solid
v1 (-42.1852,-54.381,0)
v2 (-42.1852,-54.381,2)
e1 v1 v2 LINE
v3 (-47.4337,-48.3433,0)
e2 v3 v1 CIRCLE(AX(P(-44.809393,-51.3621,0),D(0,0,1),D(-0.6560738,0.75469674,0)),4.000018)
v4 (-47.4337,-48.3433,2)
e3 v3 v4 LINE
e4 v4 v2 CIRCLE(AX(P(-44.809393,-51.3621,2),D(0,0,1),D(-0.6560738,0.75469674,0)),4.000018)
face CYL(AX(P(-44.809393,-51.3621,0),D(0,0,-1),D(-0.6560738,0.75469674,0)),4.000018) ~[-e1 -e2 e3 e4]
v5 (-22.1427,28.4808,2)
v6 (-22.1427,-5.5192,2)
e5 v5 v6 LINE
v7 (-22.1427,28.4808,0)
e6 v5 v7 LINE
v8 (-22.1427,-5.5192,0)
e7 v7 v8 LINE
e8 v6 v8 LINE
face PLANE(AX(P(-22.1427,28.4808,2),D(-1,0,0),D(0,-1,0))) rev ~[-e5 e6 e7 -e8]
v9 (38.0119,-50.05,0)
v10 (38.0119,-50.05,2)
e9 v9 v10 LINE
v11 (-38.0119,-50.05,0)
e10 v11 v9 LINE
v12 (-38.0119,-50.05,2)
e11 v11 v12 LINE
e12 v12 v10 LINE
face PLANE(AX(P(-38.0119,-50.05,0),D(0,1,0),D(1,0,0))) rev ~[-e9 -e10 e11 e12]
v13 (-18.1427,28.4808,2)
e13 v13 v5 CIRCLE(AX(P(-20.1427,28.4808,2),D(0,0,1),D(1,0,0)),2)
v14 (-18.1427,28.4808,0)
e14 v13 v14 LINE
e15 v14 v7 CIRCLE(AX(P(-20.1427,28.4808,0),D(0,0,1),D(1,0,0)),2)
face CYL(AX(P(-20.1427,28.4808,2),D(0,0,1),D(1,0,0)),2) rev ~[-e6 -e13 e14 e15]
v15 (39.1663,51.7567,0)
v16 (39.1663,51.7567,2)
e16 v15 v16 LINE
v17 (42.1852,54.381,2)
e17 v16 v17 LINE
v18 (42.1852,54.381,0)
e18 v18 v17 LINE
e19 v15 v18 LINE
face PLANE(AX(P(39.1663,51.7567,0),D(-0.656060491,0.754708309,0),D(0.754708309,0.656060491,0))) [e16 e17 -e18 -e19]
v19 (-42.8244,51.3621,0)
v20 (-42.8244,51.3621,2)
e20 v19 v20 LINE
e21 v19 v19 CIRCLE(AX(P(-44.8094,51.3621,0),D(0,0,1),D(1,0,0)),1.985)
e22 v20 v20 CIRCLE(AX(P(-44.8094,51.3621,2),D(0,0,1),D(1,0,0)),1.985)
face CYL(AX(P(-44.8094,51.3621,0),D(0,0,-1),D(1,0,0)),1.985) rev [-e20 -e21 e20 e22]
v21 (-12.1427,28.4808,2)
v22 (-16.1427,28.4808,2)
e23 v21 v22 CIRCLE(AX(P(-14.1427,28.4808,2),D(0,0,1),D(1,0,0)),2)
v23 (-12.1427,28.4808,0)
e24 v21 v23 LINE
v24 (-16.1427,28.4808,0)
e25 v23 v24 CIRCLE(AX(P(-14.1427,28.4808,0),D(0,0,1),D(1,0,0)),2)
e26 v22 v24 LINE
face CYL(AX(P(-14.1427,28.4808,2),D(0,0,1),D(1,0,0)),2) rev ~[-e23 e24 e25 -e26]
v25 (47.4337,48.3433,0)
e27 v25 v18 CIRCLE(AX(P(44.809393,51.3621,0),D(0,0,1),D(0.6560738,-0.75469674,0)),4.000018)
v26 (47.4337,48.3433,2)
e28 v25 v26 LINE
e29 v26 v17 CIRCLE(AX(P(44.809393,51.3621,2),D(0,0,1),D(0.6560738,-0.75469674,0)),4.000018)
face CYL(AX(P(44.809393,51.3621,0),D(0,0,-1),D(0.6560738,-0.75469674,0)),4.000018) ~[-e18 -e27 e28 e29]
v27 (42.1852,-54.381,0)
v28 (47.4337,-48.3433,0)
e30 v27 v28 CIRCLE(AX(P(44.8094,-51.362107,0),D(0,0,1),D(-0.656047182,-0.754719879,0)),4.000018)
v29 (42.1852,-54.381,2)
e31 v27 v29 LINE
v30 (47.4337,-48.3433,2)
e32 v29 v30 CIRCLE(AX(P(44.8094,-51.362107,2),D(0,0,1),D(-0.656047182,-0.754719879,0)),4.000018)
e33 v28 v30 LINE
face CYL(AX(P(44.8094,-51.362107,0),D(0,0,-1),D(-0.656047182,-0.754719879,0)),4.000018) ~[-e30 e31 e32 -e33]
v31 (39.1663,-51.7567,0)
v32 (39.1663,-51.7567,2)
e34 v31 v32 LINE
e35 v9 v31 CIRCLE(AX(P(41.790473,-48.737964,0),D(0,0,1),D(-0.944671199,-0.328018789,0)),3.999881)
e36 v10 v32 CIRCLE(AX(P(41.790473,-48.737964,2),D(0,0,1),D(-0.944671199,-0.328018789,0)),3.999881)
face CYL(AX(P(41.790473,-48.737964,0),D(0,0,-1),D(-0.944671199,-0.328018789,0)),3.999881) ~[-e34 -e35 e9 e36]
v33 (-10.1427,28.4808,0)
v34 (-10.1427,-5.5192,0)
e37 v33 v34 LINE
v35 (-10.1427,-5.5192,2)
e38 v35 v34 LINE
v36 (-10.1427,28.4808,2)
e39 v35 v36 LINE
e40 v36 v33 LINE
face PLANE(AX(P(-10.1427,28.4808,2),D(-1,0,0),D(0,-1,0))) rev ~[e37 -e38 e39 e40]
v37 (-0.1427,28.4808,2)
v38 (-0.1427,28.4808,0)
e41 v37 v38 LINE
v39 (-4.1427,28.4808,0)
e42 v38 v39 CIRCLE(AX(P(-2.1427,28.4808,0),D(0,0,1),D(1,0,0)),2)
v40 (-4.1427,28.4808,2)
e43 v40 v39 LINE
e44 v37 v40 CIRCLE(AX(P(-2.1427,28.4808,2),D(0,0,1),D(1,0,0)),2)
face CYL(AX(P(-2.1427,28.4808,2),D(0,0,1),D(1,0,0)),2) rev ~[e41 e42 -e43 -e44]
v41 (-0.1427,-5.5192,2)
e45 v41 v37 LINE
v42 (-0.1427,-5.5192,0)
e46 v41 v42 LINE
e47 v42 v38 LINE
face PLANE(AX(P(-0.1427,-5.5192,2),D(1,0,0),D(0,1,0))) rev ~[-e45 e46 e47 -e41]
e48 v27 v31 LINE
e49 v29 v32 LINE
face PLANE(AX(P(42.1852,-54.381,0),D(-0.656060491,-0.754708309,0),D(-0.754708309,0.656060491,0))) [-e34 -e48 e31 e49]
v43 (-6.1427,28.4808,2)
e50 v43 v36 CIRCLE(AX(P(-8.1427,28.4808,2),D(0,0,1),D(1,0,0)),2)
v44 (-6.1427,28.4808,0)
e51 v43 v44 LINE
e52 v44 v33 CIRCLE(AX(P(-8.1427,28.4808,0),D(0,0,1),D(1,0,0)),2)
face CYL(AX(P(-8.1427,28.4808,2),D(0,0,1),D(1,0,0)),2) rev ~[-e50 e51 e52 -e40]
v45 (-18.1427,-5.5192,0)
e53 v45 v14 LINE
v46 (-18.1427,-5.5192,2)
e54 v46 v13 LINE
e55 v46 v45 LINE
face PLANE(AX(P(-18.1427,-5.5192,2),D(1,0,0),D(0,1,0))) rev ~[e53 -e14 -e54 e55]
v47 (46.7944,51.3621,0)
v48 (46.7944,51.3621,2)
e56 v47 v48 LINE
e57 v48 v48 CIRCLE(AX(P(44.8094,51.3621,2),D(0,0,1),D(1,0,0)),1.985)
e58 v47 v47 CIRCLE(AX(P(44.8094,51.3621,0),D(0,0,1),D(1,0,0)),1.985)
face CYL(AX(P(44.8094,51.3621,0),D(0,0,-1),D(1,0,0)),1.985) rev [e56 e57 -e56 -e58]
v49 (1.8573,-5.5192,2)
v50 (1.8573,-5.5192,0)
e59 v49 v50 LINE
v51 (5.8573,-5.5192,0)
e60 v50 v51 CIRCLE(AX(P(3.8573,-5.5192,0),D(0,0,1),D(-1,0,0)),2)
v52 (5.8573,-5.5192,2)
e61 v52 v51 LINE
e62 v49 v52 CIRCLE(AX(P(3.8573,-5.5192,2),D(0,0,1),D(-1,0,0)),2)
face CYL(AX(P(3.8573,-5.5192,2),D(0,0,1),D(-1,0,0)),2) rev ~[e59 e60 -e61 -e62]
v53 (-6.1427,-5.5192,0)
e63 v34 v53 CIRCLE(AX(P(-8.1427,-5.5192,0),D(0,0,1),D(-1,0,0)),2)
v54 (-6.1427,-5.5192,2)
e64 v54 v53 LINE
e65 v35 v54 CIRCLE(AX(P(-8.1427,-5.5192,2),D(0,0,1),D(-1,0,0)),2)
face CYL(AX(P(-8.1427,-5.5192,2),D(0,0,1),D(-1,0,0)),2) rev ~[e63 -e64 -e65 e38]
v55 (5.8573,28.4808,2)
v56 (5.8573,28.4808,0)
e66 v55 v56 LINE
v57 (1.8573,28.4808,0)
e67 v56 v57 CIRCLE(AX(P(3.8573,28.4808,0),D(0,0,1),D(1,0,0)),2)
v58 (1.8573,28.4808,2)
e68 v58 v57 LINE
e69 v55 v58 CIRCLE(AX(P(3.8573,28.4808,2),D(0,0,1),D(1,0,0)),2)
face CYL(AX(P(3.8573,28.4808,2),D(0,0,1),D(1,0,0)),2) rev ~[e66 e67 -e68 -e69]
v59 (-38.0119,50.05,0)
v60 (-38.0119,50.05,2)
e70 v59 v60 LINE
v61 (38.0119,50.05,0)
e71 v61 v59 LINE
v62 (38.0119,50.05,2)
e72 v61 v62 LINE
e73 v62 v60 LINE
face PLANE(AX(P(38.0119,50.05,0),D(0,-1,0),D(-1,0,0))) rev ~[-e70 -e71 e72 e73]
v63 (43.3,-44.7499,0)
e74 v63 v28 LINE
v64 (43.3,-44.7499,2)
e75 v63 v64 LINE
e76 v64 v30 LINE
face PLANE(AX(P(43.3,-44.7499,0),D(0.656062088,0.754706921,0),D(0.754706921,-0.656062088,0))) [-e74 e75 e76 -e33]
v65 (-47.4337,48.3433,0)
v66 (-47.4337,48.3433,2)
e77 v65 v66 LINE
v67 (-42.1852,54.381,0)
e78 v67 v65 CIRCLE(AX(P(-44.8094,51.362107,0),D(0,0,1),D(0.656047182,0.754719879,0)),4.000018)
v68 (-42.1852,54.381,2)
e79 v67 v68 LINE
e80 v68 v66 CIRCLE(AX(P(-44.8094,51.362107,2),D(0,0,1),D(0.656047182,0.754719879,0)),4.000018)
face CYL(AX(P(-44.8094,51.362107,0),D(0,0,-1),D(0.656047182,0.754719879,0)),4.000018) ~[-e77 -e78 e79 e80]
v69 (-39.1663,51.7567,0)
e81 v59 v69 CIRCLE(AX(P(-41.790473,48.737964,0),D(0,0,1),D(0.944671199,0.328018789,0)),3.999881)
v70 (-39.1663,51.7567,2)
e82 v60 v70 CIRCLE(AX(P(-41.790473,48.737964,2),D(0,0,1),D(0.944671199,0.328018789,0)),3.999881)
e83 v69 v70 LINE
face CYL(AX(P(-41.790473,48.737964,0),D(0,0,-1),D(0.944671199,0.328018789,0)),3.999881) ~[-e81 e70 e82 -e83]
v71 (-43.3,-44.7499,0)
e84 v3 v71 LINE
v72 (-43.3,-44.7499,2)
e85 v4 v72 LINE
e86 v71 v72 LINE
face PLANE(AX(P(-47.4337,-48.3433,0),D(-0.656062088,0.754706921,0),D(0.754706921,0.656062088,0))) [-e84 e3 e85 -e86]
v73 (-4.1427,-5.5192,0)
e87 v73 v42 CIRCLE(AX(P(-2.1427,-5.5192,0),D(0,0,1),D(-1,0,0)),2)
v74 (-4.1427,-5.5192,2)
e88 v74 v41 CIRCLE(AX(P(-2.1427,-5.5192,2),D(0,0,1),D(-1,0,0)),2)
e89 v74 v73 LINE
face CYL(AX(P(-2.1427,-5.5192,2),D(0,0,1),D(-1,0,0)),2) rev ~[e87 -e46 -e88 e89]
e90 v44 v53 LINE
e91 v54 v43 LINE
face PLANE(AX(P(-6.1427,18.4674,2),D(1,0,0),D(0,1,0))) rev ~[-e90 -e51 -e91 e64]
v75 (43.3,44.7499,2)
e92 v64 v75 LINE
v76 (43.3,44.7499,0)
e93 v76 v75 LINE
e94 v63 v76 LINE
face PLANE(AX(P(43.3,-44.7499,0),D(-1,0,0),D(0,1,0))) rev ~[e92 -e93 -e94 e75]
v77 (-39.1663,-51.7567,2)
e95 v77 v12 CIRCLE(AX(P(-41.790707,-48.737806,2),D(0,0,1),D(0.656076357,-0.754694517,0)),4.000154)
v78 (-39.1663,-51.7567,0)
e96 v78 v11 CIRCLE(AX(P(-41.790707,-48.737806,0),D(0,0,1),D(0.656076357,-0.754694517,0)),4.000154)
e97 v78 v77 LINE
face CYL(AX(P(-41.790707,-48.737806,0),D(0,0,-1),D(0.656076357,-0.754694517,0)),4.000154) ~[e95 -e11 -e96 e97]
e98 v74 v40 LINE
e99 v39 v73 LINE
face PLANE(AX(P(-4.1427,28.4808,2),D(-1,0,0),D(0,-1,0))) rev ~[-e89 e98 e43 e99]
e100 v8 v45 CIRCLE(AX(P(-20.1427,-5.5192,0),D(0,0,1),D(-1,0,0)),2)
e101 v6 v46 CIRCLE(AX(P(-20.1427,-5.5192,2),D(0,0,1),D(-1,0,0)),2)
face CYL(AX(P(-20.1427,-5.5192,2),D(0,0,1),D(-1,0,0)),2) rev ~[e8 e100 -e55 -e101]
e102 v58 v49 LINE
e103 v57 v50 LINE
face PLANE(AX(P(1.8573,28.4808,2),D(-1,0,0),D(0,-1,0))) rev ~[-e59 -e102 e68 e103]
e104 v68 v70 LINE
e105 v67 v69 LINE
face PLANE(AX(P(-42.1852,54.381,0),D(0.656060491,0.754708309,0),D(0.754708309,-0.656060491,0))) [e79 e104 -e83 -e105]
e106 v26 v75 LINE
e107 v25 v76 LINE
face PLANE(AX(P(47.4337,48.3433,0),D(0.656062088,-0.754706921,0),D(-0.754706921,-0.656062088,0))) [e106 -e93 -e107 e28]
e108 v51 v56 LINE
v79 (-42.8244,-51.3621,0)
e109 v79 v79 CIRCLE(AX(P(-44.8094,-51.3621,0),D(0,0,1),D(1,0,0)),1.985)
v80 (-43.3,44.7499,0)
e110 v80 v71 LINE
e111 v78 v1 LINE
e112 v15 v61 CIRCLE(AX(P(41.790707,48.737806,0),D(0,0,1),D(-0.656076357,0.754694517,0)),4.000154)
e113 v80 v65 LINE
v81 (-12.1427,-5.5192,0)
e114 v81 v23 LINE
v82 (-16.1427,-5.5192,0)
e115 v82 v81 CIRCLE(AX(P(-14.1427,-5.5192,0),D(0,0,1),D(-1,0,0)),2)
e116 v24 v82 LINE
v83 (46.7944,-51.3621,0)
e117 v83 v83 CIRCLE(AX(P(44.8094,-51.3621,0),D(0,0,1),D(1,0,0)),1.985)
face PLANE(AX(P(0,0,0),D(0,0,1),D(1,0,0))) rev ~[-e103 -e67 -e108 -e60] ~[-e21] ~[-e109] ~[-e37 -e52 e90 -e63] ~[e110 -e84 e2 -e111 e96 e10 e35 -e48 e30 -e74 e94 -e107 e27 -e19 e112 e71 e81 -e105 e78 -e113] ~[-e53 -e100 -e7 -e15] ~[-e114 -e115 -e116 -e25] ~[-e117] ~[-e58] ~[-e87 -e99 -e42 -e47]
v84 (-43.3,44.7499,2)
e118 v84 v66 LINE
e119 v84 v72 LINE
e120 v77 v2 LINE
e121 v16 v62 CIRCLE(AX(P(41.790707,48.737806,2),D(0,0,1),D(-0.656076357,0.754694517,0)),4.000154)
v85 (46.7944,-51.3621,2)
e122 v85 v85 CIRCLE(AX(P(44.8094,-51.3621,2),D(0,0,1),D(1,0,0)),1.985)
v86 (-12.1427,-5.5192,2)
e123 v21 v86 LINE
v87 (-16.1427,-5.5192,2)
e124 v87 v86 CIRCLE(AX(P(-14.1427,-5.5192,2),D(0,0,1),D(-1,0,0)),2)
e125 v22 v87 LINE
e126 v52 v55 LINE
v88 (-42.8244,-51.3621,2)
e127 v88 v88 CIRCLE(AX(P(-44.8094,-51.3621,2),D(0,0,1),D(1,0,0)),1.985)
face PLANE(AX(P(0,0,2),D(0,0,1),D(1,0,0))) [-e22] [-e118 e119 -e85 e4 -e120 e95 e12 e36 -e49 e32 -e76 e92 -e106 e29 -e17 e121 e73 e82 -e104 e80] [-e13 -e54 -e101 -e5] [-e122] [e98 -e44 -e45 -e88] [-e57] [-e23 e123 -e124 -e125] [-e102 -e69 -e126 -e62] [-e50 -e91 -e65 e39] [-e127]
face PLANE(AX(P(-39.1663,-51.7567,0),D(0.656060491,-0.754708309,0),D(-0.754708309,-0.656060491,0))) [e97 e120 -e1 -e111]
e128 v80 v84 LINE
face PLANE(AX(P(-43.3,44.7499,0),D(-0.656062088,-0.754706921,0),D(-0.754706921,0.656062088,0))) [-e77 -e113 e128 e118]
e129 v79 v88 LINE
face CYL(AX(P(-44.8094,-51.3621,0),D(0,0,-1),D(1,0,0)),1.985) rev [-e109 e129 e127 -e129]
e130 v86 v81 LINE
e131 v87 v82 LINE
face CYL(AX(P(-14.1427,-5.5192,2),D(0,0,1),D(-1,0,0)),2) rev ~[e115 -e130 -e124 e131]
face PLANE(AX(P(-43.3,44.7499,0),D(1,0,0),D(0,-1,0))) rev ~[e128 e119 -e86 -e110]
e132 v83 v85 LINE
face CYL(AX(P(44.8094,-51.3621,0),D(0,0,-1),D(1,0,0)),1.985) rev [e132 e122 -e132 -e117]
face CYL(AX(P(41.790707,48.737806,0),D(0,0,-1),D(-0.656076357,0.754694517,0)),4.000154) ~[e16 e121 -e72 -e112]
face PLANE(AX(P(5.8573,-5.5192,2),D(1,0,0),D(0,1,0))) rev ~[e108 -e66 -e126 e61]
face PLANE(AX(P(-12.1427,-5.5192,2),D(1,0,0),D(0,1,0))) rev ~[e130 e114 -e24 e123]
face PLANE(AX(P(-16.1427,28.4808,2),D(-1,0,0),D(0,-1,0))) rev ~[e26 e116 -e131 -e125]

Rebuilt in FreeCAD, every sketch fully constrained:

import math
import FreeCAD as App
import Part
import Sketcher
from FreeCAD import Vector
Q = App.Units.Quantity

doc = App.newDocument("Part")
body = doc.addObject("PartDesign::Body", "Body")

# Sketch on XY plane
sketch1 = body.newObject("Sketcher::SketchObject", "Sketch")
sketch1.AttachmentSupport = (doc.getObject("XY_Plane"), [""])
sketch1.MapMode = "FlatFace"
sketch1.addGeometry([
    Part.ArcOfCircle(Part.Circle(Vector(41.8, 48.7, 0), Vector(0, 0, 1), 4), math.radians(131), math.radians(161)),  # 0
    Part.LineSegment(Vector(38, 50, 0), Vector(-38, 50, 0)),  # 1
    Part.ArcOfCircle(Part.Circle(Vector(-41.8, 48.7, 0), Vector(0, 0, 1), 4), math.radians(19), math.radians(49)),  # 2
    Part.LineSegment(Vector(-39.2, 51.8, 0), Vector(-42.2, 54.4, 0)),  # 3
    Part.ArcOfCircle(Part.Circle(Vector(-44.8, 51.4, 0), Vector(0, 0, 1), 4), math.radians(49), math.radians(229)),  # 4
    Part.LineSegment(Vector(-47.4, 48.3, 0), Vector(-43.3, 44.7, 0)),  # 5
    Part.LineSegment(Vector(-43.3, 44.7, 0), Vector(-43.3, -44.7, 0)),  # 6
    Part.LineSegment(Vector(-43.3, -44.7, 0), Vector(-47.4, -48.3, 0)),  # 7
    Part.ArcOfCircle(Part.Circle(Vector(-44.8, -51.4, 0), Vector(0, 0, 1), 4), math.radians(131), math.radians(311)),  # 8
    Part.LineSegment(Vector(-42.2, -54.4, 0), Vector(-39.2, -51.8, 0)),  # 9
    Part.ArcOfCircle(Part.Circle(Vector(-41.8, -48.7, 0), Vector(0, 0, 1), 4), math.radians(-49), math.radians(-19)),  # 10
    Part.LineSegment(Vector(-38, -50, 0), Vector(38, -50, 0)),  # 11
    Part.ArcOfCircle(Part.Circle(Vector(41.8, -48.7, 0), Vector(0, 0, 1), 4), math.radians(-161), math.radians(-131)),  # 12
    Part.LineSegment(Vector(39.2, -51.8, 0), Vector(42.2, -54.4, 0)),  # 13
    Part.ArcOfCircle(Part.Circle(Vector(44.8, -51.4, 0), Vector(0, 0, 1), 4), math.radians(-131), math.radians(49)),  # 14
    Part.LineSegment(Vector(47.4, -48.3, 0), Vector(43.3, -44.7, 0)),  # 15
    Part.LineSegment(Vector(43.3, -44.7, 0), Vector(43.3, 44.7, 0)),  # 16
    Part.LineSegment(Vector(43.3, 44.7, 0), Vector(47.4, 48.3, 0)),  # 17
    Part.ArcOfCircle(Part.Circle(Vector(44.8, 51.4, 0), Vector(0, 0, 1), 4), math.radians(-49), math.radians(131)),  # 18
    Part.LineSegment(Vector(42.2, 54.4, 0), Vector(39.2, 51.8, 0)),  # 19
    Part.Circle(Vector(-44.8, -51.4, 0), Vector(0, 0, 1), 2),  # 20
    Part.Circle(Vector(44.8, -51.4, 0), Vector(0, 0, 1), 2),  # 21
    Part.Circle(Vector(-44.8, 51.4, 0), Vector(0, 0, 1), 2),  # 22
    Part.Circle(Vector(44.8, 51.4, 0), Vector(0, 0, 1), 2),  # 23
], False)
sketch1.addConstraint([
    Sketcher.Constraint("Coincident", 0, 2, 1, 1),
    Sketcher.Constraint("Coincident", 1, 2, 2, 1),
    Sketcher.Constraint("Tangent", 2, 2, 3, 1),
    Sketcher.Constraint("Tangent", 3, 2, 4, 1),
    Sketcher.Constraint("Tangent", 4, 2, 5, 1),
    Sketcher.Constraint("Coincident", 5, 2, 6, 1),
    Sketcher.Constraint("Coincident", 6, 2, 7, 1),
    Sketcher.Constraint("Tangent", 7, 2, 8, 1),
    Sketcher.Constraint("Tangent", 8, 2, 9, 1),
    Sketcher.Constraint("Tangent", 9, 2, 10, 1),
    Sketcher.Constraint("Coincident", 10, 2, 11, 1),
    Sketcher.Constraint("Coincident", 11, 2, 12, 1),
    Sketcher.Constraint("Tangent", 12, 2, 13, 1),
    Sketcher.Constraint("Tangent", 13, 2, 14, 1),
    Sketcher.Constraint("Tangent", 14, 2, 15, 1),
    Sketcher.Constraint("Coincident", 15, 2, 16, 1),
    Sketcher.Constraint("Coincident", 16, 2, 17, 1),
    Sketcher.Constraint("Tangent", 17, 2, 18, 1),
    Sketcher.Constraint("Tangent", 18, 2, 19, 1),
    Sketcher.Constraint("Tangent", 19, 2, 0, 1),
    Sketcher.Constraint("Horizontal", 1),
    Sketcher.Constraint("Vertical", 6),
    Sketcher.Constraint("Horizontal", 11),
    Sketcher.Constraint("Vertical", 16),
    Sketcher.Constraint("Coincident", 20, 3, 8, 3),
    Sketcher.Constraint("Coincident", 21, 3, 14, 3),
    Sketcher.Constraint("Coincident", 22, 3, 4, 3),
    Sketcher.Constraint("Coincident", 23, 3, 18, 3),
    Sketcher.Constraint("Equal", 0, 2),
    Sketcher.Constraint("Equal", 2, 4),
    Sketcher.Constraint("Equal", 4, 8),
    Sketcher.Constraint("Equal", 8, 10),
    Sketcher.Constraint("Equal", 10, 12),
    Sketcher.Constraint("Equal", 12, 14),
    Sketcher.Constraint("Equal", 14, 18),
    Sketcher.Constraint("Equal", 20, 21),
    Sketcher.Constraint("Equal", 21, 22),
    Sketcher.Constraint("Equal", 22, 23),
    Sketcher.Constraint("Symmetric", 0, 3, 10, 3, -1, 1),
    Sketcher.Constraint("Symmetric", 2, 3, 12, 3, -1, 1),
    Sketcher.Constraint("Symmetric", 4, 3, 14, 3, -1, 1),
    Sketcher.Constraint("Symmetric", 8, 3, 18, 3, -1, 1),
    Sketcher.Constraint("Symmetric", 5, 2, 15, 2, -1, 1),
    Sketcher.Constraint("Symmetric", 0, 3, 2, 3, -2),
    Sketcher.Constraint("Symmetric", 8, 3, 14, 3, -2),
    Sketcher.Constraint("Parallel", 3, 5),
    Sketcher.Constraint("Parallel", 7, 9),
    Sketcher.Constraint("Parallel", 9, 17),
    Sketcher.Constraint("Vertical", 1, 2, 10, 2),
    Sketcher.Constraint("Radius", 0, 4.0),
    Sketcher.Constraint("Diameter", 20, 3.97),
    Sketcher.Constraint("Angle", 3, Q("139 deg")),
    Sketcher.Constraint("Distance", 3, 4.0),
    Sketcher.Constraint("DistanceX", 5, 2, -1, 1, 43.3),
    Sketcher.Constraint("DistanceX", 4, 3, 0, 3, 86.6),
    Sketcher.Constraint("DistanceY", 8, 3, 2, 3, 100.1),
    Sketcher.Constraint("DistanceY", 5, 2, 1, 2, 5.3),
])
pad1 = body.newObject("PartDesign::Pad", "Pad")
pad1.Profile = sketch1
pad1.Length = 2

# Sketch on XY plane
sketch2 = body.newObject("Sketcher::SketchObject", "Sketch001")
sketch2.AttachmentSupport = (doc.getObject("XY_Plane"), [""])
sketch2.MapMode = "FlatFace"
sketch2.AttachmentOffset = App.Placement(Vector(0, 0, 2), App.Rotation())
sketch2.addGeometry([
    Part.LineSegment(Vector(-12.1, -5.5, 0), Vector(-12.1, 28.5, 0)),  # 0
    Part.ArcOfCircle(Part.Circle(Vector(-14.1, 28.5, 0), Vector(0, 0, 1), 2), math.radians(0), math.radians(180)),  # 1
    Part.LineSegment(Vector(-16.1, 28.5, 0), Vector(-16.1, -5.5, 0)),  # 2
    Part.ArcOfCircle(Part.Circle(Vector(-14.1, -5.5, 0), Vector(0, 0, 1), 2), math.radians(180), math.radians(360)),  # 3
    Part.LineSegment(Vector(-10.1, 28.5, 0), Vector(-10.1, -5.5, 0)),  # 4
    Part.ArcOfCircle(Part.Circle(Vector(-8.1, -5.5, 0), Vector(0, 0, 1), 2), math.radians(180), math.radians(360)),  # 5
    Part.LineSegment(Vector(-6.1, -5.5, 0), Vector(-6.1, 28.5, 0)),  # 6
    Part.ArcOfCircle(Part.Circle(Vector(-8.1, 28.5, 0), Vector(0, 0, 1), 2), math.radians(0), math.radians(180)),  # 7
    Part.LineSegment(Vector(-4.1, 28.5, 0), Vector(-4.1, -5.5, 0)),  # 8
    Part.ArcOfCircle(Part.Circle(Vector(-2.1, -5.5, 0), Vector(0, 0, 1), 2), math.radians(180), math.radians(360)),  # 9
    Part.LineSegment(Vector(-0.1, -5.5, 0), Vector(-0.1, 28.5, 0)),  # 10
    Part.ArcOfCircle(Part.Circle(Vector(-2.1, 28.5, 0), Vector(0, 0, 1), 2), math.radians(0), math.radians(180)),  # 11
    Part.ArcOfCircle(Part.Circle(Vector(3.9, -5.5, 0), Vector(0, 0, 1), 2), math.radians(180), math.radians(360)),  # 12
    Part.LineSegment(Vector(5.9, -5.5, 0), Vector(5.9, 28.5, 0)),  # 13
    Part.ArcOfCircle(Part.Circle(Vector(3.9, 28.5, 0), Vector(0, 0, 1), 2), math.radians(0), math.radians(180)),  # 14
    Part.LineSegment(Vector(1.9, 28.5, 0), Vector(1.9, -5.5, 0)),  # 15
    Part.ArcOfCircle(Part.Circle(Vector(-20.1, 28.5, 0), Vector(0, 0, 1), 2), math.radians(0), math.radians(180)),  # 16
    Part.LineSegment(Vector(-22.1, 28.5, 0), Vector(-22.1, -5.5, 0)),  # 17
    Part.ArcOfCircle(Part.Circle(Vector(-20.1, -5.5, 0), Vector(0, 0, 1), 2), math.radians(180), math.radians(360)),  # 18
    Part.LineSegment(Vector(-18.1, -5.5, 0), Vector(-18.1, 28.5, 0)),  # 19
], False)
sketch2.addConstraint([
    Sketcher.Constraint("Tangent", 0, 2, 1, 1),
    Sketcher.Constraint("Tangent", 1, 2, 2, 1),
    Sketcher.Constraint("Tangent", 2, 2, 3, 1),
    Sketcher.Constraint("Tangent", 3, 2, 0, 1),
    Sketcher.Constraint("Tangent", 4, 2, 5, 1),
    Sketcher.Constraint("Tangent", 5, 2, 6, 1),
    Sketcher.Constraint("Tangent", 6, 2, 7, 1),
    Sketcher.Constraint("Tangent", 7, 2, 4, 1),
    Sketcher.Constraint("Tangent", 8, 2, 9, 1),
    Sketcher.Constraint("Tangent", 9, 2, 10, 1),
    Sketcher.Constraint("Tangent", 10, 2, 11, 1),
    Sketcher.Constraint("Tangent", 11, 2, 8, 1),
    Sketcher.Constraint("Tangent", 12, 2, 13, 1),
    Sketcher.Constraint("Tangent", 13, 2, 14, 1),
    Sketcher.Constraint("Tangent", 14, 2, 15, 1),
    Sketcher.Constraint("Tangent", 15, 2, 12, 1),
    Sketcher.Constraint("Tangent", 16, 2, 17, 1),
    Sketcher.Constraint("Tangent", 17, 2, 18, 1),
    Sketcher.Constraint("Tangent", 18, 2, 19, 1),
    Sketcher.Constraint("Tangent", 19, 2, 16, 1),
    Sketcher.Constraint("Vertical", 0),
    Sketcher.Constraint("Vertical", 2),
    Sketcher.Constraint("Vertical", 4),
    Sketcher.Constraint("Vertical", 6),
    Sketcher.Constraint("Vertical", 8),
    Sketcher.Constraint("Vertical", 10),
    Sketcher.Constraint("Vertical", 13),
    Sketcher.Constraint("Vertical", 15),
    Sketcher.Constraint("Vertical", 17),
    Sketcher.Constraint("Vertical", 19),
    Sketcher.Constraint("Equal", 3, 5),
    Sketcher.Constraint("Equal", 7, 9),
    Sketcher.Constraint("Equal", 11, 12),
    Sketcher.Constraint("Equal", 14, 16),
    Sketcher.Constraint("Horizontal", 3, 3, 5, 3),
    Sketcher.Constraint("Horizontal", 1, 3, 7, 3),
    Sketcher.Constraint("Horizontal", 5, 3, 9, 3),
    Sketcher.Constraint("Horizontal", 7, 3, 11, 3),
    Sketcher.Constraint("Horizontal", 9, 3, 12, 3),
    Sketcher.Constraint("Horizontal", 11, 3, 14, 3),
    Sketcher.Constraint("Horizontal", 14, 3, 16, 3),
    Sketcher.Constraint("Horizontal", 12, 3, 18, 3),
    Sketcher.Constraint("Radius", 1, 2.0),
    Sketcher.Constraint("DistanceX", 3, 3, 5, 3, 6.0),
    Sketcher.Constraint("DistanceX", 5, 3, 9, 3, 6.0),
    Sketcher.Constraint("DistanceX", 9, 3, 12, 3, 6.0),
    Sketcher.Constraint("DistanceX", 16, 3, 1, 3, 6.0),
    Sketcher.Constraint("DistanceY", 0, 1, 0, 2, 34.0),
    Sketcher.Constraint("DistanceX", 1, 3, -1, 1, 14.1427),
    Sketcher.Constraint("DistanceY", -1, 1, 1, 3, 28.4808),
])
pocket1 = body.newObject("PartDesign::Pocket", "Pocket")
pocket1.Profile = sketch2
pocket1.Length = 2

doc.recompute()
